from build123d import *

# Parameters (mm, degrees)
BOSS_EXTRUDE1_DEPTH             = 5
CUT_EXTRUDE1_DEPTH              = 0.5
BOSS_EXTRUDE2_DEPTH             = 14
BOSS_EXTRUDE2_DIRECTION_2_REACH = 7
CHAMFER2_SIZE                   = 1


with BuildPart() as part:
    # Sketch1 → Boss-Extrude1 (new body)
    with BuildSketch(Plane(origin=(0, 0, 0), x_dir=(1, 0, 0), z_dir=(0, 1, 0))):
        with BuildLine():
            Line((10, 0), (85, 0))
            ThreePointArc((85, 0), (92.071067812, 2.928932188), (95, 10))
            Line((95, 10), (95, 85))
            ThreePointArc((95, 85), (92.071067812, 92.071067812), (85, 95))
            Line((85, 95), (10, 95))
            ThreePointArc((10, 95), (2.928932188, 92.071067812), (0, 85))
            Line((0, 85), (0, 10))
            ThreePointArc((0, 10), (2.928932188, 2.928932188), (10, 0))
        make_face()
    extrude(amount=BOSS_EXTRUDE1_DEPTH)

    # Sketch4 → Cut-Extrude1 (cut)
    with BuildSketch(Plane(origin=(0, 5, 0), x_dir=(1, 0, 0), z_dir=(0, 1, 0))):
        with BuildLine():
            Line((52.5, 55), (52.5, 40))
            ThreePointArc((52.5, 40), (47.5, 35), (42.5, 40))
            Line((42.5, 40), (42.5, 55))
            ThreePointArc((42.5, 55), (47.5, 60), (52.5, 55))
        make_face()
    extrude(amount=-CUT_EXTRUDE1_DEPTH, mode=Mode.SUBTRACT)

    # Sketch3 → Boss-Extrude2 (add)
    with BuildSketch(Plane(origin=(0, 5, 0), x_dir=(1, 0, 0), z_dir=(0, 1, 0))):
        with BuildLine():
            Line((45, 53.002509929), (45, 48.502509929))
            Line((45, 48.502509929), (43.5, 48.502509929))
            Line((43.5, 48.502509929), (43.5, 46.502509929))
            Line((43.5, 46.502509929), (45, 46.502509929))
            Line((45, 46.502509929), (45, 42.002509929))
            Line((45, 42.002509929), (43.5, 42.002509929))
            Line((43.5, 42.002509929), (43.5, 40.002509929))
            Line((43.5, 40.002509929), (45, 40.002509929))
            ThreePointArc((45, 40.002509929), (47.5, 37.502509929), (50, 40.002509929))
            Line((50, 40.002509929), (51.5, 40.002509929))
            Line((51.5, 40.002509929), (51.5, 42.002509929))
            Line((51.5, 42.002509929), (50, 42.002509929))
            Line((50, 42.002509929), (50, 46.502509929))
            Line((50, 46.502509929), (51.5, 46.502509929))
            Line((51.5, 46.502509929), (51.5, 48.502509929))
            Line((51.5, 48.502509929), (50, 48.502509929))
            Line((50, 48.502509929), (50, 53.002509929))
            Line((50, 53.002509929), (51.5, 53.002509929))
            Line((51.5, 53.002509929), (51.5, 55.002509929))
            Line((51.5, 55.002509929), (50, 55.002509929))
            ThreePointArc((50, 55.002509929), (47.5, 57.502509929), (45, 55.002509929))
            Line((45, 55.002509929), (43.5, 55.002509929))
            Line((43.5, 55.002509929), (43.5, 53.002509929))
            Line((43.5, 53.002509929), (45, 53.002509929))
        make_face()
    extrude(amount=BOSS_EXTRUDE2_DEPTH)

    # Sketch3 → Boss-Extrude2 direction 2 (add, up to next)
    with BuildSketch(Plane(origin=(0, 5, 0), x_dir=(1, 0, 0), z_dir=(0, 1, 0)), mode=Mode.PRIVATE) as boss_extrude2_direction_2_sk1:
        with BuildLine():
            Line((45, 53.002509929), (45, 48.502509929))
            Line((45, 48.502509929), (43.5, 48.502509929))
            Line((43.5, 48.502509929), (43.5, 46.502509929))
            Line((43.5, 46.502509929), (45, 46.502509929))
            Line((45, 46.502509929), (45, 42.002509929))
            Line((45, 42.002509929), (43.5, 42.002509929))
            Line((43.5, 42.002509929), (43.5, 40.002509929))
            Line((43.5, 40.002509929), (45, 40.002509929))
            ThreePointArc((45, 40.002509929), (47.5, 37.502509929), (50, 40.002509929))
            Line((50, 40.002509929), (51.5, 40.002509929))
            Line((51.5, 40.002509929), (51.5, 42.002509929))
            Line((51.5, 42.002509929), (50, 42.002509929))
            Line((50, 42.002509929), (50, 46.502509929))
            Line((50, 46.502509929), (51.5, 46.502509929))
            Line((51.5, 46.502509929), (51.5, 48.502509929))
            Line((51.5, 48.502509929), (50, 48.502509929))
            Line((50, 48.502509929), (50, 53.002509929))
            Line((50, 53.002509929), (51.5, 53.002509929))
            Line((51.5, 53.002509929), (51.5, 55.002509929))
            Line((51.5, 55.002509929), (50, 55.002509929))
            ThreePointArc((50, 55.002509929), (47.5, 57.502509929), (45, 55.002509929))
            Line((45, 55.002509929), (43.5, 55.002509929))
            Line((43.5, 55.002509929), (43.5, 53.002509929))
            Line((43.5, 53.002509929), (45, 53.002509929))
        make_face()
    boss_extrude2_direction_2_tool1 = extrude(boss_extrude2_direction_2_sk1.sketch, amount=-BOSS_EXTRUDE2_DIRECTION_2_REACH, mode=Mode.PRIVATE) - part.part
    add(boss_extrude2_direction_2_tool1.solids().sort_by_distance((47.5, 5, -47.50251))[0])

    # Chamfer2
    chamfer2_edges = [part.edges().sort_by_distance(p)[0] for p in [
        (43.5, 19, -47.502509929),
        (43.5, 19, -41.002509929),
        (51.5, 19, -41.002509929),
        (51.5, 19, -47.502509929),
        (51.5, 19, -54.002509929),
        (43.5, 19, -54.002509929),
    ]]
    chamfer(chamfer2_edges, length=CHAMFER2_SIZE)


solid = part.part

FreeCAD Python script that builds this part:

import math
import FreeCAD as App
import Part
import Sketcher

V = App.Vector
Q = App.Units.Quantity


def edges_at(feature, points):
    """Names of the edges that pass closest to the given points."""
    edges = feature.Shape.Edges
    near = lambda p: min(range(len(edges)), key=lambda i: edges[i].distToShape(Part.Vertex(*p))[0])
    return sorted({f"Edge{near(p) + 1}" for p in points})

doc = App.newDocument("Part")
body = doc.addObject("PartDesign::Body", "Body")
body.AllowCompound = True

# Sketch on XZ plane
sketch1 = doc.addObject("Sketcher::SketchObject", "Sketch")
body.addObject(sketch1)
sketch1.AttachmentSupport = (doc.XZ_Plane, [""])
sketch1.MapMode = "FlatFace"
sketch1.addGeometry([
    Part.LineSegment(V(10, 0, 0), V(85, 0, 0)),  # 0
    Part.ArcOfCircle(Part.Circle(V(85, -10, 0), V(0, 0, 1), 10), math.radians(0), math.radians(90)),  # 1
    Part.LineSegment(V(95, -10, 0), V(95, -85, 0)),  # 2
    Part.ArcOfCircle(Part.Circle(V(85, -85, 0), V(0, 0, 1), 10), math.radians(-90), math.radians(0)),  # 3
    Part.LineSegment(V(85, -95, 0), V(10, -95, 0)),  # 4
    Part.ArcOfCircle(Part.Circle(V(10, -85, 0), V(0, 0, 1), 10), math.radians(180), math.radians(270)),  # 5
    Part.LineSegment(V(0, -85, 0), V(0, -10, 0)),  # 6
    Part.ArcOfCircle(Part.Circle(V(10, -10, 0), V(0, 0, 1), 10), math.radians(90), math.radians(180)),  # 7
], False)
sketch1.addConstraint([
    Sketcher.Constraint("Tangent", 0, 2, 1, 2),
    Sketcher.Constraint("Tangent", 1, 1, 2, 1),
    Sketcher.Constraint("Tangent", 2, 2, 3, 2),
    Sketcher.Constraint("Tangent", 3, 1, 4, 1),
    Sketcher.Constraint("Tangent", 4, 2, 5, 2),
    Sketcher.Constraint("Tangent", 5, 1, 6, 1),
    Sketcher.Constraint("Tangent", 6, 2, 7, 2),
    Sketcher.Constraint("Tangent", 7, 1, 0, 1),
    Sketcher.Constraint("Horizontal", 0),
    Sketcher.Constraint("Vertical", 2),
    Sketcher.Constraint("Horizontal", 4),
    Sketcher.Constraint("Vertical", 6),
    Sketcher.Constraint("Equal", 1, 3),
    Sketcher.Constraint("Equal", 3, 5),
    Sketcher.Constraint("Equal", 5, 7),
    Sketcher.Constraint("PointOnObject", 0, 2, -1),
    Sketcher.Constraint("PointOnObject", 5, 1, -2),
    Sketcher.Constraint("Equal", 4, 2),
    Sketcher.Constraint("Radius", 1, Q("10 mm")),
    Sketcher.Constraint("DistanceX", 0, 1, 0, 2, Q("75 mm")),
])
pad1 = doc.addObject("PartDesign::Pad", "Pad")
body.addObject(pad1)
pad1.Profile = sketch1
pad1.Length = 5
pad1.Reversed = True

# Sketch on XZ plane
sketch2 = doc.addObject("Sketcher::SketchObject", "Sketch001")
body.addObject(sketch2)
sketch2.AttachmentSupport = (doc.XZ_Plane, [""])
sketch2.MapMode = "FlatFace"
sketch2.AttachmentOffset = App.Placement(V(0, 0, -5), App.Rotation())
sketch2.addGeometry([
    Part.LineSegment(V(52, -40, 0), V(52, -55, 0)),
    Part.ArcOfCircle(Part.Circle(V(48, -55, 0), V(0, 0, 1), 5), math.radians(180), math.radians(360)),
    Part.LineSegment(V(42, -55, 0), V(42, -40, 0)),
    Part.ArcOfCircle(Part.Circle(V(48, -40, 0), V(0, 0, 1), 5), math.radians(0), math.radians(180)),
], False)
sketch2.addConstraint([
    Sketcher.Constraint("Tangent", 0, 2, 1, 2),
    Sketcher.Constraint("Tangent", 1, 1, 2, 1),
    Sketcher.Constraint("Tangent", 2, 2, 3, 2),
    Sketcher.Constraint("Tangent", 3, 1, 0, 1),
    Sketcher.Constraint("Vertical", 0),
    Sketcher.Constraint("Vertical", 2),
    Sketcher.Constraint("Radius", 1, Q("5 mm")),
    Sketcher.Constraint("DistanceY", 0, 2, 0, 1, Q("15 mm")),
    Sketcher.Constraint("DistanceY", 1, 3, -1, 1, Q("55 mm")),
    Sketcher.Constraint("DistanceX", -1, 1, 1, 3, Q("47.5 mm")),
])
pocket1 = doc.addObject("PartDesign::Pocket", "Pocket")
body.addObject(pocket1)
pocket1.Profile = sketch2
pocket1.Length = 0.5
pocket1.Reversed = True

# Sketch on XZ plane
sketch3 = doc.addObject("Sketcher::SketchObject", "Sketch002")
body.addObject(sketch3)
sketch3.AttachmentSupport = (doc.XZ_Plane, [""])
sketch3.MapMode = "FlatFace"
sketch3.AttachmentOffset = App.Placement(V(0, 0, -5), App.Rotation())
sketch3.addGeometry([
    Part.LineSegment(V(45, -53, 0), V(45, -48.5, 0)),  # 0
    Part.LineSegment(V(45, -48.5, 0), V(43.5, -48.5, 0)),  # 1
    Part.LineSegment(V(43.5, -48.5, 0), V(43.5, -46.5, 0)),  # 2
    Part.LineSegment(V(43.5, -46.5, 0), V(45, -46.5, 0)),  # 3
    Part.LineSegment(V(45, -46.5, 0), V(45, -42, 0)),  # 4
    Part.LineSegment(V(45, -42, 0), V(43.5, -42, 0)),  # 5
    Part.LineSegment(V(43.5, -42, 0), V(43.5, -40, 0)),  # 6
    Part.LineSegment(V(43.5, -40, 0), V(45, -40, 0)),  # 7
    Part.ArcOfCircle(Part.Circle(V(47.5, -40, 0), V(0, 0, 1), 2.5), math.radians(0), math.radians(180)),  # 8
    Part.LineSegment(V(50, -40, 0), V(51.5, -40, 0)),  # 9
    Part.LineSegment(V(51.5, -40, 0), V(51.5, -42, 0)),  # 10
    Part.LineSegment(V(51.5, -42, 0), V(50, -42, 0)),  # 11
    Part.LineSegment(V(50, -42, 0), V(50, -46.5, 0)),  # 12
    Part.LineSegment(V(50, -46.5, 0), V(51.5, -46.5, 0)),  # 13
    Part.LineSegment(V(51.5, -46.5, 0), V(51.5, -48.5, 0)),  # 14
    Part.LineSegment(V(51.5, -48.5, 0), V(50, -48.5, 0)),  # 15
    Part.LineSegment(V(50, -48.5, 0), V(50, -53, 0)),  # 16
    Part.LineSegment(V(50, -53, 0), V(51.5, -53, 0)),  # 17
    Part.LineSegment(V(51.5, -53, 0), V(51.5, -55, 0)),  # 18
    Part.LineSegment(V(51.5, -55, 0), V(50, -55, 0)),  # 19
    Part.ArcOfCircle(Part.Circle(V(47.5, -55, 0), V(0, 0, 1), 2.5), math.radians(180), math.radians(360)),  # 20
    Part.LineSegment(V(45, -55, 0), V(43.5, -55, 0)),  # 21
    Part.LineSegment(V(43.5, -55, 0), V(43.5, -53, 0)),  # 22
    Part.LineSegment(V(43.5, -53, 0), V(45, -53, 0)),  # 23
], False)
sketch3.addConstraint([
    Sketcher.Constraint("Coincident", 0, 2, 1, 1),
    Sketcher.Constraint("Coincident", 1, 2, 2, 1),
    Sketcher.Constraint("Coincident", 2, 2, 3, 1),
    Sketcher.Constraint("Coincident", 3, 2, 4, 1),
    Sketcher.Constraint("Coincident", 4, 2, 5, 1),
    Sketcher.Constraint("Coincident", 5, 2, 6, 1),
    Sketcher.Constraint("Coincident", 6, 2, 7, 1),
    Sketcher.Constraint("Coincident", 7, 2, 8, 2),
    Sketcher.Constraint("Coincident", 8, 1, 9, 1),
    Sketcher.Constraint("Coincident", 9, 2, 10, 1),
    Sketcher.Constraint("Coincident", 10, 2, 11, 1),
    Sketcher.Constraint("Coincident", 11, 2, 12, 1),
    Sketcher.Constraint("Coincident", 12, 2, 13, 1),
    Sketcher.Constraint("Coincident", 13, 2, 14, 1),
    Sketcher.Constraint("Coincident", 14, 2, 15, 1),
    Sketcher.Constraint("Coincident", 15, 2, 16, 1),
    Sketcher.Constraint("Coincident", 16, 2, 17, 1),
    Sketcher.Constraint("Coincident", 17, 2, 18, 1),
    Sketcher.Constraint("Coincident", 18, 2, 19, 1),
    Sketcher.Constraint("Coincident", 19, 2, 20, 2),
    Sketcher.Constraint("Coincident", 20, 1, 21, 1),
    Sketcher.Constraint("Coincident", 21, 2, 22, 1),
    Sketcher.Constraint("Coincident", 22, 2, 23, 1),
    Sketcher.Constraint("Coincident", 23, 2, 0, 1),
    Sketcher.Constraint("Vertical", 0),
    Sketcher.Constraint("Horizontal", 1),
    Sketcher.Constraint("Vertical", 2),
    Sketcher.Constraint("Horizontal", 3),
    Sketcher.Constraint("Vertical", 4),
    Sketcher.Constraint("Horizontal", 5),
    Sketcher.Constraint("Vertical", 6),
    Sketcher.Constraint("Horizontal", 7),
    Sketcher.Constraint("Horizontal", 9),
    Sketcher.Constraint("Vertical", 10),
    Sketcher.Constraint("Horizontal", 11),
    Sketcher.Constraint("Vertical", 12),
    Sketcher.Constraint("Horizontal", 13),
    Sketcher.Constraint("Vertical", 14),
    Sketcher.Constraint("Horizontal", 15),
    Sketcher.Constraint("Vertical", 16),
    Sketcher.Constraint("Horizontal", 17),
    Sketcher.Constraint("Vertical", 18),
    Sketcher.Constraint("Horizontal", 19),
    Sketcher.Constraint("Horizontal", 21),
    Sketcher.Constraint("Vertical", 22),
    Sketcher.Constraint("Horizontal", 23),
    Sketcher.Constraint("Equal", 8, 20),
    Sketcher.Constraint("Horizontal", 8, 3, 6, 2),
    Sketcher.Constraint("Horizontal", 7, 2, 8, 1),
    Sketcher.Constraint("Horizontal", 5, 2, 10, 2),
    Sketcher.Constraint("Horizontal", 3, 2, 12, 2),
    Sketcher.Constraint("Horizontal", 1, 2, 14, 2),
    Sketcher.Constraint("Horizontal", 20, 3, 18, 2),
    Sketcher.Constraint("Horizontal", 19, 2, 20, 1),
    Sketcher.Constraint("Horizontal", 17, 2, 22, 2),
    Sketcher.Constraint("Vertical", 8, 3, 20, 3),
    Sketcher.Constraint("Vertical", 0, 2, 3, 2),
    Sketcher.Constraint("Vertical", 2, 2, 5, 2),
    Sketcher.Constraint("Vertical", 4, 2, 7, 2),
    Sketcher.Constraint("Vertical", 8, 1, 11, 2),
    Sketcher.Constraint("Vertical", 10, 2, 13, 2),
    Sketcher.Constraint("Vertical", 12, 2, 15, 2),
    Sketcher.Constraint("Vertical", 14, 2, 17, 2),
    Sketcher.Constraint("Vertical", 6, 2, 21, 2),
    Sketcher.Constraint("Equal", 7, 9),
    Sketcher.Constraint("Equal", 0, 4),
    Sketcher.Constraint("Equal", 2, 6),
    Sketcher.Constraint("Equal", 14, 18),
    Sketcher.Constraint("Radius", 8, Q("2.5 mm")),
    Sketcher.Constraint("DistanceY", 2, 1, 2, 2, Q("2 mm")),
    Sketcher.Constraint("DistanceX", 1, 2, 1, 1, Q("1.5 mm")),
    Sketcher.Constraint("DistanceY", 0, 1, 0, 2, Q("4.5 mm")),
    Sketcher.Constraint("DistanceX", -1, 1, 0, 2, Q("45 mm")),
    Sketcher.Constraint("DistanceY", 8, 3, -1, 1, Q("40.00251 mm")),
])
pad2 = doc.addObject("PartDesign::Pad", "Pad001")
body.addObject(pad2)
pad2.Profile = sketch3
pad2.Length = 14
pad2.Reversed = True

# Sketch on XZ plane
sketch4 = doc.addObject("Sketcher::SketchObject", "Sketch003")
body.addObject(sketch4)
sketch4.AttachmentSupport = (doc.XZ_Plane, [""])
sketch4.MapMode = "FlatFace"
sketch4.AttachmentOffset = App.Placement(V(0, 0, -5), App.Rotation())
sketch4.addGeometry([
    Part.LineSegment(V(45, -53, 0), V(45, -48.5, 0)),  # 0
    Part.LineSegment(V(45, -48.5, 0), V(43.5, -48.5, 0)),  # 1
    Part.LineSegment(V(43.5, -48.5, 0), V(43.5, -46.5, 0)),  # 2
    Part.LineSegment(V(43.5, -46.5, 0), V(45, -46.5, 0)),  # 3
    Part.LineSegment(V(45, -46.5, 0), V(45, -42, 0)),  # 4
    Part.LineSegment(V(45, -42, 0), V(43.5, -42, 0)),  # 5
    Part.LineSegment(V(43.5, -42, 0), V(43.5, -40, 0)),  # 6
    Part.LineSegment(V(43.5, -40, 0), V(45, -40, 0)),  # 7
    Part.ArcOfCircle(Part.Circle(V(47.5, -40, 0), V(0, 0, 1), 2.5), math.radians(0), math.radians(180)),  # 8
    Part.LineSegment(V(50, -40, 0), V(51.5, -40, 0)),  # 9
    Part.LineSegment(V(51.5, -40, 0), V(51.5, -42, 0)),  # 10
    Part.LineSegment(V(51.5, -42, 0), V(50, -42, 0)),  # 11
    Part.LineSegment(V(50, -42, 0), V(50, -46.5, 0)),  # 12
    Part.LineSegment(V(50, -46.5, 0), V(51.5, -46.5, 0)),  # 13
    Part.LineSegment(V(51.5, -46.5, 0), V(51.5, -48.5, 0)),  # 14
    Part.LineSegment(V(51.5, -48.5, 0), V(50, -48.5, 0)),  # 15
    Part.LineSegment(V(50, -48.5, 0), V(50, -53, 0)),  # 16
    Part.LineSegment(V(50, -53, 0), V(51.5, -53, 0)),  # 17
    Part.LineSegment(V(51.5, -53, 0), V(51.5, -55, 0)),  # 18
    Part.LineSegment(V(51.5, -55, 0), V(50, -55, 0)),  # 19
    Part.ArcOfCircle(Part.Circle(V(47.5, -55, 0), V(0, 0, 1), 2.5), math.radians(180), math.radians(360)),  # 20
    Part.LineSegment(V(45, -55, 0), V(43.5, -55, 0)),  # 21
    Part.LineSegment(V(43.5, -55, 0), V(43.5, -53, 0)),  # 22
    Part.LineSegment(V(43.5, -53, 0), V(45, -53, 0)),  # 23
], False)
sketch4.addConstraint([
    Sketcher.Constraint("Coincident", 0, 2, 1, 1),
    Sketcher.Constraint("Coincident", 1, 2, 2, 1),
    Sketcher.Constraint("Coincident", 2, 2, 3, 1),
    Sketcher.Constraint("Coincident", 3, 2, 4, 1),
    Sketcher.Constraint("Coincident", 4, 2, 5, 1),
    Sketcher.Constraint("Coincident", 5, 2, 6, 1),
    Sketcher.Constraint("Coincident", 6, 2, 7, 1),
    Sketcher.Constraint("Coincident", 7, 2, 8, 2),
    Sketcher.Constraint("Coincident", 8, 1, 9, 1),
    Sketcher.Constraint("Coincident", 9, 2, 10, 1),
    Sketcher.Constraint("Coincident", 10, 2, 11, 1),
    Sketcher.Constraint("Coincident", 11, 2, 12, 1),
    Sketcher.Constraint("Coincident", 12, 2, 13, 1),
    Sketcher.Constraint("Coincident", 13, 2, 14, 1),
    Sketcher.Constraint("Coincident", 14, 2, 15, 1),
    Sketcher.Constraint("Coincident", 15, 2, 16, 1),
    Sketcher.Constraint("Coincident", 16, 2, 17, 1),
    Sketcher.Constraint("Coincident", 17, 2, 18, 1),
    Sketcher.Constraint("Coincident", 18, 2, 19, 1),
    Sketcher.Constraint("Coincident", 19, 2, 20, 2),
    Sketcher.Constraint("Coincident", 20, 1, 21, 1),
    Sketcher.Constraint("Coincident", 21, 2, 22, 1),
    Sketcher.Constraint("Coincident", 22, 2, 23, 1),
    Sketcher.Constraint("Coincident", 23, 2, 0, 1),
    Sketcher.Constraint("Vertical", 0),
    Sketcher.Constraint("Horizontal", 1),
    Sketcher.Constraint("Vertical", 2),
    Sketcher.Constraint("Horizontal", 3),
    Sketcher.Constraint("Vertical", 4),
    Sketcher.Constraint("Horizontal", 5),
    Sketcher.Constraint("Vertical", 6),
    Sketcher.Constraint("Horizontal", 7),
    Sketcher.Constraint("Horizontal", 9),
    Sketcher.Constraint("Vertical", 10),
    Sketcher.Constraint("Horizontal", 11),
    Sketcher.Constraint("Vertical", 12),
    Sketcher.Constraint("Horizontal", 13),
    Sketcher.Constraint("Vertical", 14),
    Sketcher.Constraint("Horizontal", 15),
    Sketcher.Constraint("Vertical", 16),
    Sketcher.Constraint("Horizontal", 17),
    Sketcher.Constraint("Vertical", 18),
    Sketcher.Constraint("Horizontal", 19),
    Sketcher.Constraint("Horizontal", 21),
    Sketcher.Constraint("Vertical", 22),
    Sketcher.Constraint("Horizontal", 23),
    Sketcher.Constraint("Equal", 8, 20),
    Sketcher.Constraint("Horizontal", 8, 3, 6, 2),
    Sketcher.Constraint("Horizontal", 7, 2, 8, 1),
    Sketcher.Constraint("Horizontal", 5, 2, 10, 2),
    Sketcher.Constraint("Horizontal", 3, 2, 12, 2),
    Sketcher.Constraint("Horizontal", 1, 2, 14, 2),
    Sketcher.Constraint("Horizontal", 20, 3, 18, 2),
    Sketcher.Constraint("Horizontal", 19, 2, 20, 1),
    Sketcher.Constraint("Horizontal", 17, 2, 22, 2),
    Sketcher.Constraint("Vertical", 8, 3, 20, 3),
    Sketcher.Constraint("Vertical", 0, 2, 3, 2),
    Sketcher.Constraint("Vertical", 2, 2, 5, 2),
    Sketcher.Constraint("Vertical", 4, 2, 7, 2),
    Sketcher.Constraint("Vertical", 8, 1, 11, 2),
    Sketcher.Constraint("Vertical", 10, 2, 13, 2),
    Sketcher.Constraint("Vertical", 12, 2, 15, 2),
    Sketcher.Constraint("Vertical", 14, 2, 17, 2),
    Sketcher.Constraint("Vertical", 6, 2, 21, 2),
    Sketcher.Constraint("Equal", 7, 9),
    Sketcher.Constraint("Equal", 0, 4),
    Sketcher.Constraint("Equal", 2, 6),
    Sketcher.Constraint("Equal", 14, 18),
    Sketcher.Constraint("Radius", 8, Q("2.5 mm")),
    Sketcher.Constraint("DistanceY", 2, 1, 2, 2, Q("2 mm")),
    Sketcher.Constraint("DistanceX", 1, 2, 1, 1, Q("1.5 mm")),
    Sketcher.Constraint("DistanceY", 0, 1, 0, 2, Q("4.5 mm")),
    Sketcher.Constraint("DistanceX", -1, 1, 0, 2, Q("45 mm")),
    Sketcher.Constraint("DistanceY", 8, 3, -1, 1, Q("40.00251 mm")),
])
pad3 = doc.addObject("PartDesign::Pad", "Pad002")
body.addObject(pad3)
pad3.Profile = sketch4
pad3.Type = "UpToFirst"
doc.recompute()

chamfer = doc.addObject("PartDesign::Chamfer", "Chamfer")
body.addObject(chamfer)
chamfer.Base = (pad3, edges_at(pad3, [
    (43.5, 19, -47.503),
    (43.5, 19, -41.003),
    (51.5, 19, -41.003),
    (51.5, 19, -47.503),
    (51.5, 19, -54.003),
    (43.5, 19, -54.003),
]))
chamfer.Size = 1

doc.recompute()
